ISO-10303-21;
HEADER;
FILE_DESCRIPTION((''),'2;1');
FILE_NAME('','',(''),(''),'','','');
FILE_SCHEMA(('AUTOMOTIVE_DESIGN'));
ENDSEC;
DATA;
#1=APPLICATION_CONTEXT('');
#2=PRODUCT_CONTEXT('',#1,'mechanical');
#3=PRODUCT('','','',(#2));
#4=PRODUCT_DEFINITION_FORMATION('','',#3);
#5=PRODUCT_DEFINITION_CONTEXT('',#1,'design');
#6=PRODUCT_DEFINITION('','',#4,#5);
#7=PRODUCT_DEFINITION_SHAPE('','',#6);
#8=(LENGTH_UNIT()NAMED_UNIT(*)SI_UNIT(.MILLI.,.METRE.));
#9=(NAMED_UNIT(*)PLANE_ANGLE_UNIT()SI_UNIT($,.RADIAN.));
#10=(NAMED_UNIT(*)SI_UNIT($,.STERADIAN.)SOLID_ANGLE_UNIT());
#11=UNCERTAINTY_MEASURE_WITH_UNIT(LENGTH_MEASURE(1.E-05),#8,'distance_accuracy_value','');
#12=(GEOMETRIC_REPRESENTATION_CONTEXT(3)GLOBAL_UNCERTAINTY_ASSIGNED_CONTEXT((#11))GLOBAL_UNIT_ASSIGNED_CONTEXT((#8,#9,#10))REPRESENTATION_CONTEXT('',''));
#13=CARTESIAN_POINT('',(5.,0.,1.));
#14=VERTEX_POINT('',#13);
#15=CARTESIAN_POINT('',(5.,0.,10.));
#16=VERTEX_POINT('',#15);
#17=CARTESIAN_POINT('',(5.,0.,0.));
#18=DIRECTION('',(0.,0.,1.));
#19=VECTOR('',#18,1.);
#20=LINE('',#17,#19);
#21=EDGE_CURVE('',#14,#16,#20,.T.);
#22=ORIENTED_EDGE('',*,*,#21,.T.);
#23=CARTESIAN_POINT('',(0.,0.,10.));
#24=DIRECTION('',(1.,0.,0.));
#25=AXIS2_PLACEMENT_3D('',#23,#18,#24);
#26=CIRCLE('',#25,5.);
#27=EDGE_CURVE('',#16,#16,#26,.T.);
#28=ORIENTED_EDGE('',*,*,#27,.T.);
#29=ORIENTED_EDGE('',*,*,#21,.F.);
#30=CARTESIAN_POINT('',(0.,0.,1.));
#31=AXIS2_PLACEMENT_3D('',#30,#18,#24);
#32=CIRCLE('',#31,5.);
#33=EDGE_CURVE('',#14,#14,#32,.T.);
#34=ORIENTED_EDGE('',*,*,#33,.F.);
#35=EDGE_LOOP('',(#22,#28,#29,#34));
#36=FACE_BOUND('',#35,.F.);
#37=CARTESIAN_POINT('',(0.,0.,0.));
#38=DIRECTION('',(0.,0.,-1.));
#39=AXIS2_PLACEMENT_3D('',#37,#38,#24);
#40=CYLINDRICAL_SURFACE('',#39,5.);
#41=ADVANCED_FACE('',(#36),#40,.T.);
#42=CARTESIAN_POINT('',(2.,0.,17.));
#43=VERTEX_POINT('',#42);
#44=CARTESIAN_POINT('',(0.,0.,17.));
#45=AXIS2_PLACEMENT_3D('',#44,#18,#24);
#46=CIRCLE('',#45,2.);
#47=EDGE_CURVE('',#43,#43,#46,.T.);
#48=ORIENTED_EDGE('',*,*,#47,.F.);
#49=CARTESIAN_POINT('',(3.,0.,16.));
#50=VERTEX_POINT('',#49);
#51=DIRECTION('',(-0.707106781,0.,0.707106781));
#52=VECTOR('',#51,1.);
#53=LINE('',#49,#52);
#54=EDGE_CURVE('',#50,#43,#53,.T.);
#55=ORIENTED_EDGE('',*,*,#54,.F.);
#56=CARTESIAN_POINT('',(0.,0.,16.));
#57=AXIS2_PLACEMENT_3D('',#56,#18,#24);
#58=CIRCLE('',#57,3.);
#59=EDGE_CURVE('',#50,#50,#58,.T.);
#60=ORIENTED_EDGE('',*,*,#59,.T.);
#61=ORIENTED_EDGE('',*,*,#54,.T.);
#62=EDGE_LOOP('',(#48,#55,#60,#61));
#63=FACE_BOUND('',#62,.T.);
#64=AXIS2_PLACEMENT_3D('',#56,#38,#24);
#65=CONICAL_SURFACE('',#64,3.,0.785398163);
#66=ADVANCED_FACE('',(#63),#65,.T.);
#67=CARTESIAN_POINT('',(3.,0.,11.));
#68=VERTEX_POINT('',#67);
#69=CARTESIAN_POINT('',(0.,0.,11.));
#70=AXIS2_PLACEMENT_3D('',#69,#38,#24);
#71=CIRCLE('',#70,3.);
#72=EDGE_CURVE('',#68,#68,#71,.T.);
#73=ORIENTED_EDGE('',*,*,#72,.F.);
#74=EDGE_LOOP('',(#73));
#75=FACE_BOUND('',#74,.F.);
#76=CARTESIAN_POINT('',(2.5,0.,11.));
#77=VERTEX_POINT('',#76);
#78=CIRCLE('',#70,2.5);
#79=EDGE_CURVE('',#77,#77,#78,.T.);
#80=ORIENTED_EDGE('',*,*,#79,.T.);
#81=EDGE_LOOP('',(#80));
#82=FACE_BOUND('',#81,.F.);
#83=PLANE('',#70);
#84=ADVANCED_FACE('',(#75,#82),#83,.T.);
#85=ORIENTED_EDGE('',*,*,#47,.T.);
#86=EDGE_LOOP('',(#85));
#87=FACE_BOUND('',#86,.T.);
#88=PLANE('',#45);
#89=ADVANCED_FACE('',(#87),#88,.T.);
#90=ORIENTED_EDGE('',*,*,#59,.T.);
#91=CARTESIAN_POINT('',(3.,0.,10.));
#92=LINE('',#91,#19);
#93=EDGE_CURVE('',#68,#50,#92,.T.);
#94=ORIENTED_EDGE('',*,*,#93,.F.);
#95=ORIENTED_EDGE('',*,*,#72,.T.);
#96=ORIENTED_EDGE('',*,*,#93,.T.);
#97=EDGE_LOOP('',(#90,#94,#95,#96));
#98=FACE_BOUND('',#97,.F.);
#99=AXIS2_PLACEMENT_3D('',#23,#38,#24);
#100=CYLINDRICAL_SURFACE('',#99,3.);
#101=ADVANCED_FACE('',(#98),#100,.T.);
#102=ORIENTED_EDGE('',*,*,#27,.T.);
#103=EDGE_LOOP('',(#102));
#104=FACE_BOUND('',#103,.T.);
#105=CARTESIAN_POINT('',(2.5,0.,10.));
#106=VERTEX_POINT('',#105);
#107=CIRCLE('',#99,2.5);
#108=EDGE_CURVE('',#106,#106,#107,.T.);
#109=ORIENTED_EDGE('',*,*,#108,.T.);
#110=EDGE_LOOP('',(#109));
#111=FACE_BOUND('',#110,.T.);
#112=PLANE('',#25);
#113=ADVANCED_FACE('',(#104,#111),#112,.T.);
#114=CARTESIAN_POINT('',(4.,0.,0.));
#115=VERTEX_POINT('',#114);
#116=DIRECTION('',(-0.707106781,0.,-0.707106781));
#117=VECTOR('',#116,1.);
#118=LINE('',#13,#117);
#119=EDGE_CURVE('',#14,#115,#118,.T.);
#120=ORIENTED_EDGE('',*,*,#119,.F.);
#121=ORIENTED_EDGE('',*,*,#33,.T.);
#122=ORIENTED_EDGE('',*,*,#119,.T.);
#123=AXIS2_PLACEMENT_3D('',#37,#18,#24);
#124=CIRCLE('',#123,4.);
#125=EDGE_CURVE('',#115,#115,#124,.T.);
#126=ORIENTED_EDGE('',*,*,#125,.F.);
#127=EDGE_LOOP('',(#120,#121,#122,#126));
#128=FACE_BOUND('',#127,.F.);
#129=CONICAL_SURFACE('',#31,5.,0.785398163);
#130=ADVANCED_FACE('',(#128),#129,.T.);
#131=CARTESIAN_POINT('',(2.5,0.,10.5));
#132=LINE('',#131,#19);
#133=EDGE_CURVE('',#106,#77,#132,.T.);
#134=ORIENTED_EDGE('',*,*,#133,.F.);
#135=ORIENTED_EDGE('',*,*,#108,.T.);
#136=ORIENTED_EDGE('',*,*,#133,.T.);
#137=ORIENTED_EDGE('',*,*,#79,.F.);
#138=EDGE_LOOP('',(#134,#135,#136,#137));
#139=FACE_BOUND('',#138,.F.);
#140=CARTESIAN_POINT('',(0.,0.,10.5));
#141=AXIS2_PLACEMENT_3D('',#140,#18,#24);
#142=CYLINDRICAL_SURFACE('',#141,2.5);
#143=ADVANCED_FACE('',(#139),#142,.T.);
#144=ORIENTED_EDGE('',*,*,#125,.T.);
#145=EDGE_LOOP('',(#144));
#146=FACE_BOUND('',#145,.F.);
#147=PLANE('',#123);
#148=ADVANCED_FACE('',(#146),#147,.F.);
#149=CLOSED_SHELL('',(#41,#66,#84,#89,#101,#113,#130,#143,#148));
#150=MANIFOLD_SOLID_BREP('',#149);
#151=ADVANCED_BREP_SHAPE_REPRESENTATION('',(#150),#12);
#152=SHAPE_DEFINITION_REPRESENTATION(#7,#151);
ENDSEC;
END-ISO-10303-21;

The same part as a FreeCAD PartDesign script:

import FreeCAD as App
import Part
import Sketcher


def edges_at(feature, points):
    """Names of the edges that pass closest to the given points."""
    edges = feature.Shape.Edges
    near = lambda p: min(range(len(edges)), key=lambda i: edges[i].distToShape(Part.Vertex(*p))[0])
    return sorted({f"Edge{near(p) + 1}" for p in points})


def add_polygon(sketch, points):
    """Adds a closed chain of lines whose ends are joined by coincident constraints."""
    first, n = sketch.GeometryCount, len(points)
    for a, b in zip(points, points[1:] + points[:1]):
        sketch.addGeometry(Part.LineSegment(App.Vector(*a, 0), App.Vector(*b, 0)), False)
    for i in range(n):
        sketch.addConstraint(Sketcher.Constraint("Coincident", first + i, 2, first + (i + 1) % n, 1))

doc = App.newDocument("Part")
body = doc.addObject("PartDesign::Body", "Body")

sketch1 = body.newObject("Sketcher::SketchObject", "Sketch")
sketch1.AttachmentSupport = (doc.getObject("XY_Plane"), [""])
sketch1.MapMode = "FlatFace"
sketch1.addGeometry(Part.Circle(App.Vector(0, 0, 0), App.Vector(0, 0, 1), 5), False)
sketch1.addConstraint(Sketcher.Constraint("Coincident", 0, 3, -1, 1))
sketch1.addConstraint(Sketcher.Constraint("Diameter", 0, 10.0))
pad1 = body.newObject("PartDesign::Pad", "Pad")
pad1.Profile = sketch1
pad1.Length = 10

sketch2 = body.newObject("Sketcher::SketchObject", "Sketch001")
sketch2.AttachmentSupport = (doc.getObject("XY_Plane"), [""])
sketch2.MapMode = "FlatFace"
sketch2.AttachmentOffset = App.Placement(App.Vector(0, 0, 10), App.Rotation())
sketch2.addGeometry(Part.Circle(App.Vector(0, 0, 0), App.Vector(0, 0, 1), 3), False)
sketch2.addConstraint(Sketcher.Constraint("Coincident", 0, 3, -1, 1))
sketch2.addConstraint(Sketcher.Constraint("Diameter", 0, 6.0))
pad2 = body.newObject("PartDesign::Pad", "Pad001")
pad2.Profile = sketch2
pad2.Length = 7

sketch3 = body.newObject("Sketcher::SketchObject", "Sketch002")
sketch3.AttachmentSupport = (doc.getObject("XZ_Plane"), [""])
sketch3.MapMode = "FlatFace"
add_polygon(sketch3, [(2.5, 11), (2.5, 10), (3, 10), (3, 11)])
sketch3.addConstraint(Sketcher.Constraint("Vertical", 0))
sketch3.addConstraint(Sketcher.Constraint("Horizontal", 1))
sketch3.addConstraint(Sketcher.Constraint("Vertical", 2))
sketch3.addConstraint(Sketcher.Constraint("Horizontal", 3))
sketch3.addConstraint(Sketcher.Constraint("DistanceY", 0, 2, 0, 1, 1.0))
sketch3.addConstraint(Sketcher.Constraint("DistanceX", 1, 1, 1, 2, 0.5))
sketch3.addConstraint(Sketcher.Constraint("DistanceY", -1, 1, 0, 2, 10.0))
sketch3.addConstraint(Sketcher.Constraint("DistanceX", -1, 1, 1, 2, 3.0))
groove = body.newObject("PartDesign::Groove", "Groove")
groove.Profile = sketch3
groove.ReferenceAxis = (sketch3, ["V_Axis"])
groove.Angle = 360
doc.recompute()

chamfer = body.newObject("PartDesign::Chamfer", "Chamfer")
chamfer.Base = (groove, edges_at(groove, [(-3, 0, 17)]))
chamfer.Size = 1
doc.recompute()

chamfer2 = body.newObject("PartDesign::Chamfer", "Chamfer001")
chamfer2.Base = (chamfer, edges_at(chamfer, [(-5, 0, 0)]))
chamfer2.Size = 1

doc.recompute()
